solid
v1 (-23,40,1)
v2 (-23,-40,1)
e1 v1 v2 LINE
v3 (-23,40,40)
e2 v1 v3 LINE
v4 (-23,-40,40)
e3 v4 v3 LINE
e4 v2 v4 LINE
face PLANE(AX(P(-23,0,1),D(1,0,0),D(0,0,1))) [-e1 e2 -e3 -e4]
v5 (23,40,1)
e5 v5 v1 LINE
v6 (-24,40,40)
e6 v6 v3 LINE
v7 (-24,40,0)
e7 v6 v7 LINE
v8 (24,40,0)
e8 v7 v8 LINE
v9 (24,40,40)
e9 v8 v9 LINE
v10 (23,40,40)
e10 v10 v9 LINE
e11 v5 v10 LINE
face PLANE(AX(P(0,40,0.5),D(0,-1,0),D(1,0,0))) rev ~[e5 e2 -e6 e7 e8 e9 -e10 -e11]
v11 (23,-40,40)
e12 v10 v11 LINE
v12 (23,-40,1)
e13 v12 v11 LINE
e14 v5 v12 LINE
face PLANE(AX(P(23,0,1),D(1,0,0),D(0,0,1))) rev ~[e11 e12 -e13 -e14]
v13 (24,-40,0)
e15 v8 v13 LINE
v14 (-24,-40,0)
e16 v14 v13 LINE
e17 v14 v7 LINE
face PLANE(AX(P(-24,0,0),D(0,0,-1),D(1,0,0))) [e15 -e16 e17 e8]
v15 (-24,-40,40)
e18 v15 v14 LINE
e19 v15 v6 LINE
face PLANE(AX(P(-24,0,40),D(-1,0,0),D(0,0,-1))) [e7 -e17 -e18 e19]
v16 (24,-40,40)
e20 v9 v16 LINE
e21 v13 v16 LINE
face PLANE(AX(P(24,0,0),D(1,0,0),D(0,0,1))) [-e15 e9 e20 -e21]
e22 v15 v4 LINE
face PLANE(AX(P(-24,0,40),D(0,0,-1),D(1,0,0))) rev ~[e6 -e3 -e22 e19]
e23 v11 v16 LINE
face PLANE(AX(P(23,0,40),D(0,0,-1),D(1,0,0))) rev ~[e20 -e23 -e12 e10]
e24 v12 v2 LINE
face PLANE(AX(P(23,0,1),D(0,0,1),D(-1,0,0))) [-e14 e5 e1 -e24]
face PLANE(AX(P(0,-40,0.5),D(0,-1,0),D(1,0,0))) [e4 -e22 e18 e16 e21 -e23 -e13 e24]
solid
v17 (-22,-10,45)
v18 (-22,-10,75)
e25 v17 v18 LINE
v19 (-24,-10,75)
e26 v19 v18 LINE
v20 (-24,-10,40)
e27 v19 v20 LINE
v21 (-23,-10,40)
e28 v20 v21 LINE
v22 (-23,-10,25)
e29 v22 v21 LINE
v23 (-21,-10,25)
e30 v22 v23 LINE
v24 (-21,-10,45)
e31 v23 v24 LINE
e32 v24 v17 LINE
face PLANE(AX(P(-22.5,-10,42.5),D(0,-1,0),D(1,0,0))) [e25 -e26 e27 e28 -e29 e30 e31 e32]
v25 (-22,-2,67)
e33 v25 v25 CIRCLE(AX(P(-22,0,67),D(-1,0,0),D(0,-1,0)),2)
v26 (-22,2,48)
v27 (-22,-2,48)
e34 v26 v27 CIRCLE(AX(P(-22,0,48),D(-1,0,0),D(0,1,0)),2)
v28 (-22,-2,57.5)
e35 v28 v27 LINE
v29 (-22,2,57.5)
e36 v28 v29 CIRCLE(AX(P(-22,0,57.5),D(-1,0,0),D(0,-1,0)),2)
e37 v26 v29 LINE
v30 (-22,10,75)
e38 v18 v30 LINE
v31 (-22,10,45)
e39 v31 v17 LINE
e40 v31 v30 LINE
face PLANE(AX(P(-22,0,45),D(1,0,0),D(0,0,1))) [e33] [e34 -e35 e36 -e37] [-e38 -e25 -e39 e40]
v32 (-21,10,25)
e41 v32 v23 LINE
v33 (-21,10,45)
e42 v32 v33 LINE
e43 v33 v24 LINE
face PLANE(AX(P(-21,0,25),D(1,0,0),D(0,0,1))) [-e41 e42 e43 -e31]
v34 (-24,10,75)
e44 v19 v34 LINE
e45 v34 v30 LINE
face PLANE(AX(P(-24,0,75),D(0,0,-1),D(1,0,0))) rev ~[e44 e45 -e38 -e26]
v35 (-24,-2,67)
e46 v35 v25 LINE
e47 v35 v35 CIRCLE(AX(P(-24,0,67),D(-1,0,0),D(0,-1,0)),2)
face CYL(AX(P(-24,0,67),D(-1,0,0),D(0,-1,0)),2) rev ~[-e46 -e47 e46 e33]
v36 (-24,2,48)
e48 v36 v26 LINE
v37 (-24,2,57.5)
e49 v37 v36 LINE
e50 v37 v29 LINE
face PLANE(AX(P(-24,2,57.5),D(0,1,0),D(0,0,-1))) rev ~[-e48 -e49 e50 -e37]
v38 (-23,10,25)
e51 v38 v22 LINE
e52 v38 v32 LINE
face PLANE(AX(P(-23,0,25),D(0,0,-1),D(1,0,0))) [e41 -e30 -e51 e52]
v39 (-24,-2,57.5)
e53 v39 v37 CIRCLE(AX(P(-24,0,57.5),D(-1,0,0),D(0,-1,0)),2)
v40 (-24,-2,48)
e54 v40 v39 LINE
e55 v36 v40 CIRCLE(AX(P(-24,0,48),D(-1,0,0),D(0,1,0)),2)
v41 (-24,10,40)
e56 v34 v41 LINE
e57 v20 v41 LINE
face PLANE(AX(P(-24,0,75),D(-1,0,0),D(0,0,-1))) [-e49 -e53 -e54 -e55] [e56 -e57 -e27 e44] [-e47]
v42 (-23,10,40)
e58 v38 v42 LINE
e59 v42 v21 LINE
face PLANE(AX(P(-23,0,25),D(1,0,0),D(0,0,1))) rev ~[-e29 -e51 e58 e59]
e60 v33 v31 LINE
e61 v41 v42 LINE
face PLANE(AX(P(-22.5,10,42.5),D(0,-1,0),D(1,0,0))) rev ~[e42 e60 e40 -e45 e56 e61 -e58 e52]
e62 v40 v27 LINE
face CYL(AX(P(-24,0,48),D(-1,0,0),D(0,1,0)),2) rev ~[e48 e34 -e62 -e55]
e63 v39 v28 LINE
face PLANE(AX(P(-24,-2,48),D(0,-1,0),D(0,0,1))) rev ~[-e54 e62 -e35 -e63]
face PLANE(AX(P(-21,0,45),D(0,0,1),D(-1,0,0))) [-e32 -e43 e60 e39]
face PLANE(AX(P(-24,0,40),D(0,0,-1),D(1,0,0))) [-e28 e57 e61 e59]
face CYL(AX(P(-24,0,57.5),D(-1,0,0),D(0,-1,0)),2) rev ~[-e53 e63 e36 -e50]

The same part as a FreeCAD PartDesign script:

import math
import FreeCAD as App
import Part
import Sketcher
from FreeCAD import Vector
Q = App.Units.Quantity


def add_polygon(sketch, points):
    """Adds a closed chain of lines whose ends are joined by coincident constraints."""
    first, n = sketch.GeometryCount, len(points)
    for a, b in zip(points, points[1:] + points[:1]):
        sketch.addGeometry(Part.LineSegment(App.Vector(*a, 0), App.Vector(*b, 0)), False)
    for i in range(n):
        sketch.addConstraint(Sketcher.Constraint("Coincident", first + i, 2, first + (i + 1) % n, 1))

doc = App.newDocument("Part")
body = doc.addObject("PartDesign::Body", "Body")

# Sketch on XZ plane
sketch1 = doc.addObject("Sketcher::SketchObject", "Sketch")
body.addObject(sketch1)
sketch1.AttachmentSupport = (doc.XZ_Plane, [""])
sketch1.MapMode = "FlatFace"
add_polygon(sketch1, [(-24, 0), (24, 0), (24, 40), (23, 40), (23, 1), (-23, 1), (-23, 40), (-24, 40)])  # lines 0-7
sketch1.addConstraint(Sketcher.Constraint("Horizontal", 0))
sketch1.addConstraint(Sketcher.Constraint("Vertical", 1))
sketch1.addConstraint(Sketcher.Constraint("Horizontal", 2))
sketch1.addConstraint(Sketcher.Constraint("Vertical", 3))
sketch1.addConstraint(Sketcher.Constraint("Horizontal", 4))
sketch1.addConstraint(Sketcher.Constraint("Vertical", 5))
sketch1.addConstraint(Sketcher.Constraint("Horizontal", 6))
sketch1.addConstraint(Sketcher.Constraint("Vertical", 7))
sketch1.addConstraint(Sketcher.Constraint("Symmetric", 0, 2, 7, 2, -1, 1))
sketch1.addConstraint(Sketcher.Constraint("Symmetric", 2, 2, 5, 2, -2))
sketch1.addConstraint(Sketcher.Constraint("DistanceX", 0, 1, 0, 2, Q("48 mm")))
sketch1.addConstraint(Sketcher.Constraint("DistanceX", 2, 2, 2, 1, Q("1 mm")))
sketch1.addConstraint(Sketcher.Constraint("DistanceY", 1, 1, 1, 2, Q("40 mm")))
sketch1.addConstraint(Sketcher.Constraint("DistanceY", 3, 2, 3, 1, Q("39 mm")))
pad1 = doc.addObject("PartDesign::Pad", "Pad")
body.addObject(pad1)
pad1.Profile = sketch1
pad1.Type = "TwoLengths"
pad1.Length = 40
pad1.Length2 = 40
body2 = doc.addObject("PartDesign::Body", "Body001")

# Sketch on XZ plane
sketch2 = doc.addObject("Sketcher::SketchObject", "Sketch001")
body2.addObject(sketch2)
sketch2.AttachmentSupport = (doc.getObject("XZ_Plane001"), [""])
sketch2.MapMode = "FlatFace"
add_polygon(sketch2, [(-24, 40), (-23, 40), (-23, 25), (-21, 25), (-21, 45), (-22, 45), (-22, 75), (-24, 75)])  # lines 0-7
sketch2.addConstraint(Sketcher.Constraint("Horizontal", 0))
sketch2.addConstraint(Sketcher.Constraint("Vertical", 1))
sketch2.addConstraint(Sketcher.Constraint("Horizontal", 2))
sketch2.addConstraint(Sketcher.Constraint("Vertical", 3))
sketch2.addConstraint(Sketcher.Constraint("Horizontal", 4))
sketch2.addConstraint(Sketcher.Constraint("Vertical", 5))
sketch2.addConstraint(Sketcher.Constraint("Horizontal", 6))
sketch2.addConstraint(Sketcher.Constraint("Vertical", 7))
sketch2.addConstraint(Sketcher.Constraint("Equal", 0, 4))
sketch2.addConstraint(Sketcher.Constraint("DistanceX", 0, 1, 0, 2, Q("1 mm")))
sketch2.addConstraint(Sketcher.Constraint("DistanceX", 2, 1, 2, 2, Q("2 mm")))
sketch2.addConstraint(Sketcher.Constraint("DistanceY", 1, 2, 1, 1, Q("15 mm")))
sketch2.addConstraint(Sketcher.Constraint("DistanceY", 3, 1, 3, 2, Q("20 mm")))
sketch2.addConstraint(Sketcher.Constraint("DistanceY", 5, 1, 5, 2, Q("30 mm")))
sketch2.addConstraint(Sketcher.Constraint("DistanceX", 0, 2, -1, 1, Q("23 mm")))
sketch2.addConstraint(Sketcher.Constraint("DistanceY", -1, 1, 0, 2, Q("40 mm")))
pad2 = doc.addObject("PartDesign::Pad", "Pad001")
body2.addObject(pad2)
pad2.Profile = sketch2
pad2.Type = "TwoLengths"
pad2.Length = 10
pad2.Length2 = 10

# Sketch on YZ plane
sketch3 = doc.addObject("Sketcher::SketchObject", "Sketch002")
body2.addObject(sketch3)
sketch3.AttachmentSupport = (doc.getObject("YZ_Plane001"), [""])
sketch3.MapMode = "FlatFace"
sketch3.AttachmentOffset = App.Placement(Vector(0, 0, -24), App.Rotation())
sketch3.addGeometry(Part.Circle(Vector(0, 67, 0), Vector(0, 0, 1), 2), False)
sketch3.addGeometry(Part.LineSegment(Vector(-2, 48, 0), Vector(-2, 57.5, 0)), False)
sketch3.addGeometry(Part.ArcOfCircle(Part.Circle(Vector(0, 57.5, 0), Vector(0, 0, 1), 2), math.radians(0), math.radians(180)), False)
sketch3.addGeometry(Part.LineSegment(Vector(2, 57.5, 0), Vector(2, 48, 0)), False)
sketch3.addGeometry(Part.ArcOfCircle(Part.Circle(Vector(0, 48, 0), Vector(0, 0, 1), 2), math.radians(180), math.radians(360)), False)
sketch3.addConstraint(Sketcher.Constraint("Tangent", 1, 2, 2, 2))
sketch3.addConstraint(Sketcher.Constraint("Tangent", 2, 1, 3, 1))
sketch3.addConstraint(Sketcher.Constraint("Tangent", 3, 2, 4, 2))
sketch3.addConstraint(Sketcher.Constraint("Tangent", 4, 1, 1, 1))
sketch3.addConstraint(Sketcher.Constraint("Vertical", 1))
sketch3.addConstraint(Sketcher.Constraint("Vertical", 3))
sketch3.addConstraint(Sketcher.Constraint("Equal", 0, 2))
sketch3.addConstraint(Sketcher.Constraint("PointOnObject", 0, 3, -2))
sketch3.addConstraint(Sketcher.Constraint("PointOnObject", 2, 3, -2))
sketch3.addConstraint(Sketcher.Constraint("Diameter", 0, Q("4 mm")))
sketch3.addConstraint(Sketcher.Constraint("DistanceY", 1, 1, 1, 2, Q("9.5 mm")))
sketch3.addConstraint(Sketcher.Constraint("DistanceY", -1, 1, 0, 3, Q("67 mm")))
sketch3.addConstraint(Sketcher.Constraint("DistanceY", -1, 1, 4, 3, Q("48 mm")))
pocket1 = doc.addObject("PartDesign::Pocket", "Pocket")
body2.addObject(pocket1)
pocket1.Profile = sketch3
pocket1.Length = 10
pocket1.Reversed = True

doc.recompute()
